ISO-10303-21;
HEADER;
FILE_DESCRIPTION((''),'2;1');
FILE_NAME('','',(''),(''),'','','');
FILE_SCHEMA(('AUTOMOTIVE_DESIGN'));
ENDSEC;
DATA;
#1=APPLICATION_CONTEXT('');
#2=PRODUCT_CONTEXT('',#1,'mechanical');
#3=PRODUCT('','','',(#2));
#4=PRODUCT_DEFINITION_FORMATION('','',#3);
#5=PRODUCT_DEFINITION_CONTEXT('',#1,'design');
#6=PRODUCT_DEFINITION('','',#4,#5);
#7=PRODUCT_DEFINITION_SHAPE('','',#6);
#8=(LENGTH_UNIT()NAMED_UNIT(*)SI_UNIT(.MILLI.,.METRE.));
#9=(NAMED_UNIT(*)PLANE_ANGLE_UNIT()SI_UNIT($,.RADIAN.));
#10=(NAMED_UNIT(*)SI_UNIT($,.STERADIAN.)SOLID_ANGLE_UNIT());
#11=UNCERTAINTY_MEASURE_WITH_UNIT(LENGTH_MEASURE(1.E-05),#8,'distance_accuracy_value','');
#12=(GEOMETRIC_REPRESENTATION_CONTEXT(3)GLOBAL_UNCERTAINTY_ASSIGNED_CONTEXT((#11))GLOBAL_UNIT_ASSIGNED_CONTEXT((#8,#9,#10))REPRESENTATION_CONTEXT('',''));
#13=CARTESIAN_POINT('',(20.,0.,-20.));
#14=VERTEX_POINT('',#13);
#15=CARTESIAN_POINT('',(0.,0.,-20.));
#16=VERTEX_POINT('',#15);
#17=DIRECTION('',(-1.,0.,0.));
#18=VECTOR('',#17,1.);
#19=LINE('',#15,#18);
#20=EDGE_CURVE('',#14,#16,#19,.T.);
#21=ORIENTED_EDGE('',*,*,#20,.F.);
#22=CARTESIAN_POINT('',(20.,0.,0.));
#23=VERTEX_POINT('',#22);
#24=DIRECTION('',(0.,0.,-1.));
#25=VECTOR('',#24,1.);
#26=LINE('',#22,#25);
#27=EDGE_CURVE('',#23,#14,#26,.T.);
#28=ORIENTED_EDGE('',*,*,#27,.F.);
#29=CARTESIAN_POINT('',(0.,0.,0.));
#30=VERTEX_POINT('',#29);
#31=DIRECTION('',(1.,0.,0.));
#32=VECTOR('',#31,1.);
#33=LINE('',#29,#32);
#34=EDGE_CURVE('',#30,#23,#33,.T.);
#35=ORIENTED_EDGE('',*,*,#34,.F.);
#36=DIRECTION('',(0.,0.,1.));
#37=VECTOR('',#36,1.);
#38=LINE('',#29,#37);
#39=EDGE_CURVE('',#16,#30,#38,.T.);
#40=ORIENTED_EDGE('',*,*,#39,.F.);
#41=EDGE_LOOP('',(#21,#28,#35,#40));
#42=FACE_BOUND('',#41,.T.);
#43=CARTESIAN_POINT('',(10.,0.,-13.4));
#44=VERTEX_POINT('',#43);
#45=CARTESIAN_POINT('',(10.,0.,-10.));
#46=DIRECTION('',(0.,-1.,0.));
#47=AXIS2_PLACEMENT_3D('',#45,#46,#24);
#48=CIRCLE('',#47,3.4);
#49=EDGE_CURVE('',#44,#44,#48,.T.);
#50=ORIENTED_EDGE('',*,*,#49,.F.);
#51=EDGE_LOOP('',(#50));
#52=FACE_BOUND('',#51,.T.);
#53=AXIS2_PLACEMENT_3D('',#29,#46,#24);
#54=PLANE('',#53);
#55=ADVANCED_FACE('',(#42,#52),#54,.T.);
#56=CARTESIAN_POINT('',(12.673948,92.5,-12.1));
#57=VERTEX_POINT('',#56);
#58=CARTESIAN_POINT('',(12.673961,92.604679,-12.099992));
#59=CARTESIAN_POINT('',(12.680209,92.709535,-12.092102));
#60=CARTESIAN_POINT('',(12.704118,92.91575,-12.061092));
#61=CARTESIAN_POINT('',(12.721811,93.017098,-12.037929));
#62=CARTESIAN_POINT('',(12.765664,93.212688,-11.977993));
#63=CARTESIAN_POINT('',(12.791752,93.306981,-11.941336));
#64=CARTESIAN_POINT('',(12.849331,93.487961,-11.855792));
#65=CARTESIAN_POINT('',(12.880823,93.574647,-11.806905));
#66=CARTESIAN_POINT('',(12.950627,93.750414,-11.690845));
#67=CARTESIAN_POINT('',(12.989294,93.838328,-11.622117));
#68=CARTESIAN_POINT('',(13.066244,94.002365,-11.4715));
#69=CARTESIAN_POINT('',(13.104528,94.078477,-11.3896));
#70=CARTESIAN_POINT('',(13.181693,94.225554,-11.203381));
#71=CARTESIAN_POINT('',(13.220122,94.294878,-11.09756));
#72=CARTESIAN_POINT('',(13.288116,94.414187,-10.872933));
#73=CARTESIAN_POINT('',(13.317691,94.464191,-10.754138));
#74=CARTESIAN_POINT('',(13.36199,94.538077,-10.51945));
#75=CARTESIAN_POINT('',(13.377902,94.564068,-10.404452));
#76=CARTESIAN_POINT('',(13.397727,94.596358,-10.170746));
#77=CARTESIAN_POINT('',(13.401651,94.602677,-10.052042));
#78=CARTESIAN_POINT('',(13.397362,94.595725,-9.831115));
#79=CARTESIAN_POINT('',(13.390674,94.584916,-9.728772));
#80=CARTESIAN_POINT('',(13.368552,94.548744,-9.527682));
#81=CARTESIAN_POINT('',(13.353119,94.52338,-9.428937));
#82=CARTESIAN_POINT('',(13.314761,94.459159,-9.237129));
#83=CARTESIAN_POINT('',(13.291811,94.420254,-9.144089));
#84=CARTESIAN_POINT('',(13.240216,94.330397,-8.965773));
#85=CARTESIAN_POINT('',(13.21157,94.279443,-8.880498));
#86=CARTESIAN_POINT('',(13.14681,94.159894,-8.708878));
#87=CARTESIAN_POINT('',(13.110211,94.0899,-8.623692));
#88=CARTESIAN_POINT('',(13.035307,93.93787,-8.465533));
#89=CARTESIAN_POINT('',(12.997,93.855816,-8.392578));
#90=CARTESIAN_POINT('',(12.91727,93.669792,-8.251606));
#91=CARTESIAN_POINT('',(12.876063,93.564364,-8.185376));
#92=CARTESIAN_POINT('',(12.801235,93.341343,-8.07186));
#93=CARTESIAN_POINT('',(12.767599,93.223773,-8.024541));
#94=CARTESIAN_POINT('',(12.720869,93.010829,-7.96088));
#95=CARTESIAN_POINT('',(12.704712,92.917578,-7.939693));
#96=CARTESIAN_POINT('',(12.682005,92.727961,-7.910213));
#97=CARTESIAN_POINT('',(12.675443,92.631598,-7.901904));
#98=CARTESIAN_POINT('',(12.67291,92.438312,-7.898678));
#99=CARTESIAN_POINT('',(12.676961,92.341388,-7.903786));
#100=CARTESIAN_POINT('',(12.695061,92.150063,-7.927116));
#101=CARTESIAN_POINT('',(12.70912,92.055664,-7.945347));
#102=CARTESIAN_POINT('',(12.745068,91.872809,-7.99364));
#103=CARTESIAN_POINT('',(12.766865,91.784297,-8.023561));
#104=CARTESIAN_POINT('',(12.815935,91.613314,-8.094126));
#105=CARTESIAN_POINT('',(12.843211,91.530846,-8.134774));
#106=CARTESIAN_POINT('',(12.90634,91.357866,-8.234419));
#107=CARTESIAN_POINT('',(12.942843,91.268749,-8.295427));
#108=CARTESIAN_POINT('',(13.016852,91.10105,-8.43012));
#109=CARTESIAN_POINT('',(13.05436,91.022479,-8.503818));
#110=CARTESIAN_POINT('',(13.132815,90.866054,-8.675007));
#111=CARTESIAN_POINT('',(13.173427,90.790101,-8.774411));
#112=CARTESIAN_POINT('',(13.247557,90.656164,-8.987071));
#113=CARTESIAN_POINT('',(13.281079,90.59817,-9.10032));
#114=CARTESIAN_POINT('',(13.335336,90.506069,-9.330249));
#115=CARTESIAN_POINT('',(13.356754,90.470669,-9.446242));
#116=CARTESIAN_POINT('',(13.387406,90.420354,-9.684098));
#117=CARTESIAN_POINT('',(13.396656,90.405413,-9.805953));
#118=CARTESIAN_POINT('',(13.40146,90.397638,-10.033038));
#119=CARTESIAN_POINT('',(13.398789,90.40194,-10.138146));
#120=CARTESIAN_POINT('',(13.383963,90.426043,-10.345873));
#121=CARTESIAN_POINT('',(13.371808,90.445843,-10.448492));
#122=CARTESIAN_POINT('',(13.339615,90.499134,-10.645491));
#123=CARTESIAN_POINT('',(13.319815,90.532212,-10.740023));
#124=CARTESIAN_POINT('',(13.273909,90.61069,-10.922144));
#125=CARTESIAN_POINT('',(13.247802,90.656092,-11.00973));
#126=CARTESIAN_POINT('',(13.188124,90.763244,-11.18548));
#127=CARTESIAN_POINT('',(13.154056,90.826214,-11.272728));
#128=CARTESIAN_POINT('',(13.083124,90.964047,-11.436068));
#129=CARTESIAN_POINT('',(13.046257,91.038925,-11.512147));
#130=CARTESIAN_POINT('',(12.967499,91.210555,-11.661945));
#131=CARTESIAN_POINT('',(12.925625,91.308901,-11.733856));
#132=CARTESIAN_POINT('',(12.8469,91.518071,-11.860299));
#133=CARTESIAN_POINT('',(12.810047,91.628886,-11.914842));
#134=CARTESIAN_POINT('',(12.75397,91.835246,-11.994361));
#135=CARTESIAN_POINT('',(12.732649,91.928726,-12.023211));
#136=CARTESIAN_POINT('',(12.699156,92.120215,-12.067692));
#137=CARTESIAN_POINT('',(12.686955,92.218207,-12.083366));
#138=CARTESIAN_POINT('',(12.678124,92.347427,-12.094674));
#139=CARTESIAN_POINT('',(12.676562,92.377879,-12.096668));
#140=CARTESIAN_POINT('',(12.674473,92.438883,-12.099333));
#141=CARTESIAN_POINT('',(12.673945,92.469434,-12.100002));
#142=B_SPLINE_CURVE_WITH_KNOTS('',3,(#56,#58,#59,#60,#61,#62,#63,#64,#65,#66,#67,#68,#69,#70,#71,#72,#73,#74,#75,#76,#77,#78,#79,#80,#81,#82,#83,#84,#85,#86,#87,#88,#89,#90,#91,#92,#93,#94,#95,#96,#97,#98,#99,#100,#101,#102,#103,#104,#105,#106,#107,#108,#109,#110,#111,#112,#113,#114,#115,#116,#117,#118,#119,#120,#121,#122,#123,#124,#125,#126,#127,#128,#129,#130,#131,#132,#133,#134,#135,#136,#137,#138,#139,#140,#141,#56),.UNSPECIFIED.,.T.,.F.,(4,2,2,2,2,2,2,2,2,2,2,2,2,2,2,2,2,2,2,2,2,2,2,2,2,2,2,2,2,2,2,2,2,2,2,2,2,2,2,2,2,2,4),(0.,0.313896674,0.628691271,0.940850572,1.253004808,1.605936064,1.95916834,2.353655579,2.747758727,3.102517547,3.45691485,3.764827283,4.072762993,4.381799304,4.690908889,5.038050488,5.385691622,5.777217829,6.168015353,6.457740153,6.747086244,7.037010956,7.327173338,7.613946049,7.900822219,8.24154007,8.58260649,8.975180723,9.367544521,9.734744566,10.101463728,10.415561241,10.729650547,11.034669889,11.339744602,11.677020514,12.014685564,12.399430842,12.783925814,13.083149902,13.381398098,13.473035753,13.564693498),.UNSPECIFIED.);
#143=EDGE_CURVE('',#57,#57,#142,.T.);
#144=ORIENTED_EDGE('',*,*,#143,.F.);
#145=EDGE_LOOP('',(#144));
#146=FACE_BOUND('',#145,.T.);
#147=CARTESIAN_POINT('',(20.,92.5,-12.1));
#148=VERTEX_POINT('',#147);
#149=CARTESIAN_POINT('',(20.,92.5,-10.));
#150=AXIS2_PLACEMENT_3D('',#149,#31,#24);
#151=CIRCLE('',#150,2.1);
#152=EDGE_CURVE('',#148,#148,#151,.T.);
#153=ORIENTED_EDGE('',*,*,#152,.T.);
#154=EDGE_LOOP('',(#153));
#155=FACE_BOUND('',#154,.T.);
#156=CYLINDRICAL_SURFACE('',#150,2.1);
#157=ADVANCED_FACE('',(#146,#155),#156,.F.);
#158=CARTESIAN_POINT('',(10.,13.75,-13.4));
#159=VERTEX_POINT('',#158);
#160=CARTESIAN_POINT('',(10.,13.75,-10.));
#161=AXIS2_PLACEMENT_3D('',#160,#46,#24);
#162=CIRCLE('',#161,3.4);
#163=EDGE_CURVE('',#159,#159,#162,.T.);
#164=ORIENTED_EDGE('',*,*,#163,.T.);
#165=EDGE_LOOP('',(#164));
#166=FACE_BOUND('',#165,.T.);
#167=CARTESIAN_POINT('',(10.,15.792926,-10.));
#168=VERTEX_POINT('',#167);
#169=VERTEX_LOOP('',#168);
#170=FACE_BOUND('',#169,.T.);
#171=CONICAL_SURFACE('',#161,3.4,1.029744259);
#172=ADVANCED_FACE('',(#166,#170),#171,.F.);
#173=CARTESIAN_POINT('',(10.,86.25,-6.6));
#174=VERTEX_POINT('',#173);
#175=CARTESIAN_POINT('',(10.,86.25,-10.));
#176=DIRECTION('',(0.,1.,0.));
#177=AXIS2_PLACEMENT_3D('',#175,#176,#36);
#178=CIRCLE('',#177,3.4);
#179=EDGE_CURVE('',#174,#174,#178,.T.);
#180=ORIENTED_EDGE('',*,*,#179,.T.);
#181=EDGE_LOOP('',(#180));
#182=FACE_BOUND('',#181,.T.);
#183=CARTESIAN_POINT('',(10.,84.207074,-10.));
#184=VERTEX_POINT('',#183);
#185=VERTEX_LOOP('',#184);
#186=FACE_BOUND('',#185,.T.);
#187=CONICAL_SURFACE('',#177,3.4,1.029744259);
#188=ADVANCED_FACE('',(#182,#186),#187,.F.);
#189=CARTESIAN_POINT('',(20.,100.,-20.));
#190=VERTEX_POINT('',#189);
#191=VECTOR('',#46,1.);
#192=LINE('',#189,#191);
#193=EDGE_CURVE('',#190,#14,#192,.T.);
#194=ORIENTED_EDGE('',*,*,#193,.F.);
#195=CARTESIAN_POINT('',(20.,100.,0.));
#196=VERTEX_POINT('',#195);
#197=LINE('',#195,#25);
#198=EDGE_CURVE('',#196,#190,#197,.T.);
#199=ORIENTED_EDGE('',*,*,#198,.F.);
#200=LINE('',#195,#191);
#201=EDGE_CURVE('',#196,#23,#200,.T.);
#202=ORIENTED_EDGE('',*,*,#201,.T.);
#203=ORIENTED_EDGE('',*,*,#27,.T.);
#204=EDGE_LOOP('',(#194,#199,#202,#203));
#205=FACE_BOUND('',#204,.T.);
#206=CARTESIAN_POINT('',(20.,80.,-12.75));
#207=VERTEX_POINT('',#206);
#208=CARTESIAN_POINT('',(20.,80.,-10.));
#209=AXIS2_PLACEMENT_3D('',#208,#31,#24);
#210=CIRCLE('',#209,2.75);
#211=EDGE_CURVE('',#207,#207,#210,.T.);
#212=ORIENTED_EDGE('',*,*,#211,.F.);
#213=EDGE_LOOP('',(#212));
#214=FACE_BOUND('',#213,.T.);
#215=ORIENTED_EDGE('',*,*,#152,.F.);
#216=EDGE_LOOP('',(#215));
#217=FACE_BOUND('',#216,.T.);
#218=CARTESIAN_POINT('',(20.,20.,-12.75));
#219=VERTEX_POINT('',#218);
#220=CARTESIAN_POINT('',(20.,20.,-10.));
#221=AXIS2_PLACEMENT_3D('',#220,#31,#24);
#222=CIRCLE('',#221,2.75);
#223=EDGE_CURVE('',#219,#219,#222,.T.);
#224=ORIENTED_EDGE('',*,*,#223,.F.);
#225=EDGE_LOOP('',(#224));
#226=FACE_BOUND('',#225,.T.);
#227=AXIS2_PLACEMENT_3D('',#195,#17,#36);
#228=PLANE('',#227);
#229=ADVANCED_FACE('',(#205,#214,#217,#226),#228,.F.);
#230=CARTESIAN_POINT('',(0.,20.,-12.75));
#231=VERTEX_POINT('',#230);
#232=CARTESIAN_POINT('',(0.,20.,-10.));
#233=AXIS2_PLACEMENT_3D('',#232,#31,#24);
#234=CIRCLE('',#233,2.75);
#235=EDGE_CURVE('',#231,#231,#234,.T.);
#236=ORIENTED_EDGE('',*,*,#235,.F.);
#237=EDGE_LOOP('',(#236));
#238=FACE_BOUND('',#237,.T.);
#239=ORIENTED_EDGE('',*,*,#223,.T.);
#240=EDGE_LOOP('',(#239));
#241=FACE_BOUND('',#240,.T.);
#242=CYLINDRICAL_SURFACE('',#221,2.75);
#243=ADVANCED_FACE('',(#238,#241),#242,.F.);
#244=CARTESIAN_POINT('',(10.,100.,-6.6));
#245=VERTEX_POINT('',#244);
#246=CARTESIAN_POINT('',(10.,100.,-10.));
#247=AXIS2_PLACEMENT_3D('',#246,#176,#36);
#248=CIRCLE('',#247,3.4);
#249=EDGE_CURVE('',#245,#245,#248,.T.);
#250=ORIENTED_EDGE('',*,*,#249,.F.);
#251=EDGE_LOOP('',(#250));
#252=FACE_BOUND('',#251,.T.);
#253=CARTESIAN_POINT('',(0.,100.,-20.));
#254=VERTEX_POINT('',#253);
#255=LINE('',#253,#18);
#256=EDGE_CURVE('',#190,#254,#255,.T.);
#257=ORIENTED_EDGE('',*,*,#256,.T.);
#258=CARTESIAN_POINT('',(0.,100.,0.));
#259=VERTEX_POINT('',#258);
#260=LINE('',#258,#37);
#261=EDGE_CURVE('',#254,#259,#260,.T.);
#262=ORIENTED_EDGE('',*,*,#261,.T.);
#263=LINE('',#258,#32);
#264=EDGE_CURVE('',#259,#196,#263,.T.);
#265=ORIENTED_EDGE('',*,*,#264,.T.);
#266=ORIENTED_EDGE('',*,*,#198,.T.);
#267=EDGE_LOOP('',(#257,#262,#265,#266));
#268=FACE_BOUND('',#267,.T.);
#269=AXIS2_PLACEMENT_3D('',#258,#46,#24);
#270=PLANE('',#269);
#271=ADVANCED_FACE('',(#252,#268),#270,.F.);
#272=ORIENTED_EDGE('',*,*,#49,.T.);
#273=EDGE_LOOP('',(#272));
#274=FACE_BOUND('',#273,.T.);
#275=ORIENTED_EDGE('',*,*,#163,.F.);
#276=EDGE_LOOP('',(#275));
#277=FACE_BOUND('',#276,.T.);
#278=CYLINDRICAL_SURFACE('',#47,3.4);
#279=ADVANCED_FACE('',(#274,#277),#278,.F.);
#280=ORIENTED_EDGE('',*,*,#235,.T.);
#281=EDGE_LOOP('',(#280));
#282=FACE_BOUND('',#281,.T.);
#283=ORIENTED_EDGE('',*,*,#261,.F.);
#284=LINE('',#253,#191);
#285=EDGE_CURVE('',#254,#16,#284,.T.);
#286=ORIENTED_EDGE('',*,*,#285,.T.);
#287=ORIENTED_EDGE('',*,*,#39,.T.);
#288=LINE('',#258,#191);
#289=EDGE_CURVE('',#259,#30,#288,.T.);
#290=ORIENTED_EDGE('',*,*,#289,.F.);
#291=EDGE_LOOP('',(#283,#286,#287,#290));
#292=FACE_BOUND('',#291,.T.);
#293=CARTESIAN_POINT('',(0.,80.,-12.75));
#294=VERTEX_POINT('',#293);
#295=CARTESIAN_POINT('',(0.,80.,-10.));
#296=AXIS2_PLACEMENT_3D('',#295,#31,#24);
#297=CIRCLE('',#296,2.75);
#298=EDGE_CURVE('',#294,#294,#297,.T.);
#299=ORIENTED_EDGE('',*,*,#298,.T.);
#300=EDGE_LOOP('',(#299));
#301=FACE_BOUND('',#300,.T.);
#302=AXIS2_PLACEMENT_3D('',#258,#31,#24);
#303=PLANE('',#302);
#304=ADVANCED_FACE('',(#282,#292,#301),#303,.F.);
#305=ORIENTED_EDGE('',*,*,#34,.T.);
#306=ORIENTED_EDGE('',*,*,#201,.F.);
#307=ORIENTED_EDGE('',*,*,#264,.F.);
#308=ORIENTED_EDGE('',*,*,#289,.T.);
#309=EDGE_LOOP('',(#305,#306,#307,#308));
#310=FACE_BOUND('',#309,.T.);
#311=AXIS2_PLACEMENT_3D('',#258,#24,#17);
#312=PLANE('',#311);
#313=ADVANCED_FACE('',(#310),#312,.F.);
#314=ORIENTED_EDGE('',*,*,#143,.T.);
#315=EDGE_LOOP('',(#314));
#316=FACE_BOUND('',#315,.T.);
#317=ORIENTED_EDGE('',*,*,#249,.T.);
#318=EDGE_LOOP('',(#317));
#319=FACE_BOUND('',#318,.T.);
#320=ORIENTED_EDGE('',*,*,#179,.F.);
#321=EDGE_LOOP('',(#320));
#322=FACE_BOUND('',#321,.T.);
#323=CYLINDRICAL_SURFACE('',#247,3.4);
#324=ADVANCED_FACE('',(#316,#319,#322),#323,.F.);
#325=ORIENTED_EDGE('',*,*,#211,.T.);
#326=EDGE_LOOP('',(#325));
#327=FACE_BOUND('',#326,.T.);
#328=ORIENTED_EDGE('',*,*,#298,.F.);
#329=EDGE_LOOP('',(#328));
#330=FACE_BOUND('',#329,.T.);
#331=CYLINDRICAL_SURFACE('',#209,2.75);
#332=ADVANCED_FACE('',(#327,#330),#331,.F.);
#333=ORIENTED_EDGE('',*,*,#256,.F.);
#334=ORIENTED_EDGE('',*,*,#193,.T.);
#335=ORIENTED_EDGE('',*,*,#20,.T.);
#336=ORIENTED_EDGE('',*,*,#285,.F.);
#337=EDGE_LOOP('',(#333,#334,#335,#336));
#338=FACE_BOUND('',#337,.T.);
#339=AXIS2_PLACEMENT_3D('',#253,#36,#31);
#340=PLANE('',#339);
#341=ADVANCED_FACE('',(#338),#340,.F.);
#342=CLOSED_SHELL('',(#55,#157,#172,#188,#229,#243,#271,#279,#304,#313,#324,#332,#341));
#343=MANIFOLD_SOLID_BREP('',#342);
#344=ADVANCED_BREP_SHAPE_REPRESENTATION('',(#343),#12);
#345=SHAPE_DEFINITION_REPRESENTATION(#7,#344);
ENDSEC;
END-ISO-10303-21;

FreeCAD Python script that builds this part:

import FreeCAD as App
import Part
import Sketcher
Q = App.Units.Quantity

doc = App.newDocument("Part")
body = doc.addObject("PartDesign::Body", "Body")

sketch1 = body.newObject("Sketcher::SketchObject", "Sketch")
sketch1.AttachmentSupport = (doc.getObject("XZ_Plane"), [""])
sketch1.MapMode = "FlatFace"
sketch1.addGeometry([
    Part.LineSegment(App.Vector(0, -20, 0), App.Vector(0, 0, 0)),
    Part.LineSegment(App.Vector(0, 0, 0), App.Vector(20, 0, 0)),
    Part.LineSegment(App.Vector(20, 0, 0), App.Vector(20, -20, 0)),
    Part.LineSegment(App.Vector(20, -20, 0), App.Vector(0, -20, 0)),
], False)
sketch1.addConstraint([
    Sketcher.Constraint("Coincident", 0, 2, 1, 1),
    Sketcher.Constraint("Coincident", 1, 2, 2, 1),
    Sketcher.Constraint("Coincident", 2, 2, 3, 1),
    Sketcher.Constraint("Coincident", 3, 2, 0, 1),
    Sketcher.Constraint("Vertical", 0),
    Sketcher.Constraint("Horizontal", 1),
    Sketcher.Constraint("Vertical", 2),
    Sketcher.Constraint("Horizontal", 3),
    Sketcher.Constraint("Coincident", 0, 2, -1, 1),
    Sketcher.Constraint("Equal", 3, 0),
    Sketcher.Constraint("DistanceX", 1, 1, 1, 2, Q("20 mm")),
])
pad1 = body.newObject("PartDesign::Pad", "Pad")
pad1.Profile = sketch1
pad1.Length = 100
pad1.Reversed = True

sketch2 = body.newObject("Sketcher::SketchObject", "Sketch001")
sketch2.AttachmentSupport = (doc.getObject("YZ_Plane"), [""])
sketch2.MapMode = "FlatFace"
sketch2.AttachmentOffset = App.Placement(App.Vector(0, 0, 10), App.Rotation())
sketch2.addGeometry([
    Part.LineSegment(App.Vector(84.2, -10, 0), App.Vector(100, -10, 0)),
    Part.LineSegment(App.Vector(100, -10, 0), App.Vector(100, -6.6, 0)),
    Part.LineSegment(App.Vector(100, -6.6, 0), App.Vector(86.2, -6.6, 0)),
    Part.LineSegment(App.Vector(86.2, -6.6, 0), App.Vector(84.2, -10, 0)),
], False)
sketch2.addGeometry(Part.LineSegment(App.Vector(100, -10, 0), App.Vector(84.2, -10, 0)), True)
sketch2.addConstraint([
    Sketcher.Constraint("Coincident", 0, 2, 1, 1),
    Sketcher.Constraint("Coincident", 1, 2, 2, 1),
    Sketcher.Constraint("Coincident", 2, 2, 3, 1),
    Sketcher.Constraint("Coincident", 3, 2, 0, 1),
    Sketcher.Constraint("Horizontal", 0),
    Sketcher.Constraint("Vertical", 1),
    Sketcher.Constraint("Horizontal", 2),
    Sketcher.Constraint("Horizontal", 4),
    Sketcher.Constraint("Coincident", 4, 1, 0, 2),
    Sketcher.Constraint("Equal", 0, 4),
    Sketcher.Constraint("Angle", 3, Q("-121 deg")),
    Sketcher.Constraint("DistanceY", 1, 1, 1, 2, Q("3.4 mm")),
    Sketcher.Constraint("DistanceX", -1, 1, 0, 2, Q("100 mm")),
    Sketcher.Constraint("DistanceY", 0, 2, -1, 1, Q("10 mm")),
    Sketcher.Constraint("DistanceX", 2, 2, 2, 1, Q("13.75 mm")),
])
groove = body.newObject("PartDesign::Groove", "Groove")
groove.Profile = sketch2
groove.ReferenceAxis = (sketch2, ["Axis0"])
groove.Angle = 360
doc.recompute()

datumplane = body.newObject("PartDesign::Plane", "DatumPlane")
datumplane.AttachmentSupport = (doc.getObject("XZ_Plane"), [""])
datumplane.MapMode = "FlatFace"
datumplane.AttachmentOffset = App.Placement(App.Vector(0, 0, -50), App.Rotation())
mirrored = body.newObject("PartDesign::Mirrored", "Mirrored")
mirrored.Originals = [groove]
mirrored.MirrorPlane = (datumplane, [""])
body.Tip = mirrored

sketch3 = body.newObject("Sketcher::SketchObject", "Sketch002")
sketch3.AttachmentSupport = (doc.getObject("YZ_Plane"), [""])
sketch3.MapMode = "FlatFace"
sketch3.AttachmentOffset = App.Placement(App.Vector(0, 0, 20), App.Rotation())
sketch3.addGeometry([
    Part.Circle(App.Vector(20, -10, 0), App.Vector(0, 0, 1), 2.8),
    Part.Circle(App.Vector(80, -10, 0), App.Vector(0, 0, 1), 2.8),
], False)
sketch3.addConstraint([
    Sketcher.Constraint("Equal", 0, 1),
    Sketcher.Constraint("Horizontal", 0, 3, 1, 3),
    Sketcher.Constraint("Diameter", 0, Q("5.5 mm")),
    Sketcher.Constraint("DistanceX", -1, 1, 0, 3, Q("20 mm")),
    Sketcher.Constraint("DistanceY", 0, 3, -1, 1, Q("10 mm")),
    Sketcher.Constraint("DistanceX", -1, 1, 1, 3, Q("80 mm")),
])
doc.recompute()
hole = body.newObject("PartDesign::Hole", "Hole")
hole.Profile = sketch3
hole.ThreadType = "None"
hole.Diameter = 5.5
hole.DepthType = "ThroughAll"

sketch4 = body.newObject("Sketcher::SketchObject", "Sketch003")
sketch4.AttachmentSupport = (doc.getObject("YZ_Plane"), [""])
sketch4.MapMode = "FlatFace"
sketch4.AttachmentOffset = App.Placement(App.Vector(0, 0, 20), App.Rotation())
sketch4.addGeometry(Part.Circle(App.Vector(92.5, -10, 0), App.Vector(0, 0, 1), 2.1), False)
sketch4.addConstraint([
    Sketcher.Constraint("Diameter", 0, Q("4.2 mm")),
    Sketcher.Constraint("DistanceY", 0, 3, -1, 1, Q("10 mm")),
    Sketcher.Constraint("DistanceX", -1, 1, 0, 3, Q("92.5 mm")),
])
doc.recompute()
hole2 = body.newObject("PartDesign::Hole", "Hole001")
hole2.Profile = sketch4
hole2.ThreadType = "None"
hole2.Diameter = 4.2
hole2.DepthType = "Dimension"
hole2.Depth = 10.4
hole2.DrillPoint = "Angled"
hole2.DrillPointAngle = 118

doc.recompute()
